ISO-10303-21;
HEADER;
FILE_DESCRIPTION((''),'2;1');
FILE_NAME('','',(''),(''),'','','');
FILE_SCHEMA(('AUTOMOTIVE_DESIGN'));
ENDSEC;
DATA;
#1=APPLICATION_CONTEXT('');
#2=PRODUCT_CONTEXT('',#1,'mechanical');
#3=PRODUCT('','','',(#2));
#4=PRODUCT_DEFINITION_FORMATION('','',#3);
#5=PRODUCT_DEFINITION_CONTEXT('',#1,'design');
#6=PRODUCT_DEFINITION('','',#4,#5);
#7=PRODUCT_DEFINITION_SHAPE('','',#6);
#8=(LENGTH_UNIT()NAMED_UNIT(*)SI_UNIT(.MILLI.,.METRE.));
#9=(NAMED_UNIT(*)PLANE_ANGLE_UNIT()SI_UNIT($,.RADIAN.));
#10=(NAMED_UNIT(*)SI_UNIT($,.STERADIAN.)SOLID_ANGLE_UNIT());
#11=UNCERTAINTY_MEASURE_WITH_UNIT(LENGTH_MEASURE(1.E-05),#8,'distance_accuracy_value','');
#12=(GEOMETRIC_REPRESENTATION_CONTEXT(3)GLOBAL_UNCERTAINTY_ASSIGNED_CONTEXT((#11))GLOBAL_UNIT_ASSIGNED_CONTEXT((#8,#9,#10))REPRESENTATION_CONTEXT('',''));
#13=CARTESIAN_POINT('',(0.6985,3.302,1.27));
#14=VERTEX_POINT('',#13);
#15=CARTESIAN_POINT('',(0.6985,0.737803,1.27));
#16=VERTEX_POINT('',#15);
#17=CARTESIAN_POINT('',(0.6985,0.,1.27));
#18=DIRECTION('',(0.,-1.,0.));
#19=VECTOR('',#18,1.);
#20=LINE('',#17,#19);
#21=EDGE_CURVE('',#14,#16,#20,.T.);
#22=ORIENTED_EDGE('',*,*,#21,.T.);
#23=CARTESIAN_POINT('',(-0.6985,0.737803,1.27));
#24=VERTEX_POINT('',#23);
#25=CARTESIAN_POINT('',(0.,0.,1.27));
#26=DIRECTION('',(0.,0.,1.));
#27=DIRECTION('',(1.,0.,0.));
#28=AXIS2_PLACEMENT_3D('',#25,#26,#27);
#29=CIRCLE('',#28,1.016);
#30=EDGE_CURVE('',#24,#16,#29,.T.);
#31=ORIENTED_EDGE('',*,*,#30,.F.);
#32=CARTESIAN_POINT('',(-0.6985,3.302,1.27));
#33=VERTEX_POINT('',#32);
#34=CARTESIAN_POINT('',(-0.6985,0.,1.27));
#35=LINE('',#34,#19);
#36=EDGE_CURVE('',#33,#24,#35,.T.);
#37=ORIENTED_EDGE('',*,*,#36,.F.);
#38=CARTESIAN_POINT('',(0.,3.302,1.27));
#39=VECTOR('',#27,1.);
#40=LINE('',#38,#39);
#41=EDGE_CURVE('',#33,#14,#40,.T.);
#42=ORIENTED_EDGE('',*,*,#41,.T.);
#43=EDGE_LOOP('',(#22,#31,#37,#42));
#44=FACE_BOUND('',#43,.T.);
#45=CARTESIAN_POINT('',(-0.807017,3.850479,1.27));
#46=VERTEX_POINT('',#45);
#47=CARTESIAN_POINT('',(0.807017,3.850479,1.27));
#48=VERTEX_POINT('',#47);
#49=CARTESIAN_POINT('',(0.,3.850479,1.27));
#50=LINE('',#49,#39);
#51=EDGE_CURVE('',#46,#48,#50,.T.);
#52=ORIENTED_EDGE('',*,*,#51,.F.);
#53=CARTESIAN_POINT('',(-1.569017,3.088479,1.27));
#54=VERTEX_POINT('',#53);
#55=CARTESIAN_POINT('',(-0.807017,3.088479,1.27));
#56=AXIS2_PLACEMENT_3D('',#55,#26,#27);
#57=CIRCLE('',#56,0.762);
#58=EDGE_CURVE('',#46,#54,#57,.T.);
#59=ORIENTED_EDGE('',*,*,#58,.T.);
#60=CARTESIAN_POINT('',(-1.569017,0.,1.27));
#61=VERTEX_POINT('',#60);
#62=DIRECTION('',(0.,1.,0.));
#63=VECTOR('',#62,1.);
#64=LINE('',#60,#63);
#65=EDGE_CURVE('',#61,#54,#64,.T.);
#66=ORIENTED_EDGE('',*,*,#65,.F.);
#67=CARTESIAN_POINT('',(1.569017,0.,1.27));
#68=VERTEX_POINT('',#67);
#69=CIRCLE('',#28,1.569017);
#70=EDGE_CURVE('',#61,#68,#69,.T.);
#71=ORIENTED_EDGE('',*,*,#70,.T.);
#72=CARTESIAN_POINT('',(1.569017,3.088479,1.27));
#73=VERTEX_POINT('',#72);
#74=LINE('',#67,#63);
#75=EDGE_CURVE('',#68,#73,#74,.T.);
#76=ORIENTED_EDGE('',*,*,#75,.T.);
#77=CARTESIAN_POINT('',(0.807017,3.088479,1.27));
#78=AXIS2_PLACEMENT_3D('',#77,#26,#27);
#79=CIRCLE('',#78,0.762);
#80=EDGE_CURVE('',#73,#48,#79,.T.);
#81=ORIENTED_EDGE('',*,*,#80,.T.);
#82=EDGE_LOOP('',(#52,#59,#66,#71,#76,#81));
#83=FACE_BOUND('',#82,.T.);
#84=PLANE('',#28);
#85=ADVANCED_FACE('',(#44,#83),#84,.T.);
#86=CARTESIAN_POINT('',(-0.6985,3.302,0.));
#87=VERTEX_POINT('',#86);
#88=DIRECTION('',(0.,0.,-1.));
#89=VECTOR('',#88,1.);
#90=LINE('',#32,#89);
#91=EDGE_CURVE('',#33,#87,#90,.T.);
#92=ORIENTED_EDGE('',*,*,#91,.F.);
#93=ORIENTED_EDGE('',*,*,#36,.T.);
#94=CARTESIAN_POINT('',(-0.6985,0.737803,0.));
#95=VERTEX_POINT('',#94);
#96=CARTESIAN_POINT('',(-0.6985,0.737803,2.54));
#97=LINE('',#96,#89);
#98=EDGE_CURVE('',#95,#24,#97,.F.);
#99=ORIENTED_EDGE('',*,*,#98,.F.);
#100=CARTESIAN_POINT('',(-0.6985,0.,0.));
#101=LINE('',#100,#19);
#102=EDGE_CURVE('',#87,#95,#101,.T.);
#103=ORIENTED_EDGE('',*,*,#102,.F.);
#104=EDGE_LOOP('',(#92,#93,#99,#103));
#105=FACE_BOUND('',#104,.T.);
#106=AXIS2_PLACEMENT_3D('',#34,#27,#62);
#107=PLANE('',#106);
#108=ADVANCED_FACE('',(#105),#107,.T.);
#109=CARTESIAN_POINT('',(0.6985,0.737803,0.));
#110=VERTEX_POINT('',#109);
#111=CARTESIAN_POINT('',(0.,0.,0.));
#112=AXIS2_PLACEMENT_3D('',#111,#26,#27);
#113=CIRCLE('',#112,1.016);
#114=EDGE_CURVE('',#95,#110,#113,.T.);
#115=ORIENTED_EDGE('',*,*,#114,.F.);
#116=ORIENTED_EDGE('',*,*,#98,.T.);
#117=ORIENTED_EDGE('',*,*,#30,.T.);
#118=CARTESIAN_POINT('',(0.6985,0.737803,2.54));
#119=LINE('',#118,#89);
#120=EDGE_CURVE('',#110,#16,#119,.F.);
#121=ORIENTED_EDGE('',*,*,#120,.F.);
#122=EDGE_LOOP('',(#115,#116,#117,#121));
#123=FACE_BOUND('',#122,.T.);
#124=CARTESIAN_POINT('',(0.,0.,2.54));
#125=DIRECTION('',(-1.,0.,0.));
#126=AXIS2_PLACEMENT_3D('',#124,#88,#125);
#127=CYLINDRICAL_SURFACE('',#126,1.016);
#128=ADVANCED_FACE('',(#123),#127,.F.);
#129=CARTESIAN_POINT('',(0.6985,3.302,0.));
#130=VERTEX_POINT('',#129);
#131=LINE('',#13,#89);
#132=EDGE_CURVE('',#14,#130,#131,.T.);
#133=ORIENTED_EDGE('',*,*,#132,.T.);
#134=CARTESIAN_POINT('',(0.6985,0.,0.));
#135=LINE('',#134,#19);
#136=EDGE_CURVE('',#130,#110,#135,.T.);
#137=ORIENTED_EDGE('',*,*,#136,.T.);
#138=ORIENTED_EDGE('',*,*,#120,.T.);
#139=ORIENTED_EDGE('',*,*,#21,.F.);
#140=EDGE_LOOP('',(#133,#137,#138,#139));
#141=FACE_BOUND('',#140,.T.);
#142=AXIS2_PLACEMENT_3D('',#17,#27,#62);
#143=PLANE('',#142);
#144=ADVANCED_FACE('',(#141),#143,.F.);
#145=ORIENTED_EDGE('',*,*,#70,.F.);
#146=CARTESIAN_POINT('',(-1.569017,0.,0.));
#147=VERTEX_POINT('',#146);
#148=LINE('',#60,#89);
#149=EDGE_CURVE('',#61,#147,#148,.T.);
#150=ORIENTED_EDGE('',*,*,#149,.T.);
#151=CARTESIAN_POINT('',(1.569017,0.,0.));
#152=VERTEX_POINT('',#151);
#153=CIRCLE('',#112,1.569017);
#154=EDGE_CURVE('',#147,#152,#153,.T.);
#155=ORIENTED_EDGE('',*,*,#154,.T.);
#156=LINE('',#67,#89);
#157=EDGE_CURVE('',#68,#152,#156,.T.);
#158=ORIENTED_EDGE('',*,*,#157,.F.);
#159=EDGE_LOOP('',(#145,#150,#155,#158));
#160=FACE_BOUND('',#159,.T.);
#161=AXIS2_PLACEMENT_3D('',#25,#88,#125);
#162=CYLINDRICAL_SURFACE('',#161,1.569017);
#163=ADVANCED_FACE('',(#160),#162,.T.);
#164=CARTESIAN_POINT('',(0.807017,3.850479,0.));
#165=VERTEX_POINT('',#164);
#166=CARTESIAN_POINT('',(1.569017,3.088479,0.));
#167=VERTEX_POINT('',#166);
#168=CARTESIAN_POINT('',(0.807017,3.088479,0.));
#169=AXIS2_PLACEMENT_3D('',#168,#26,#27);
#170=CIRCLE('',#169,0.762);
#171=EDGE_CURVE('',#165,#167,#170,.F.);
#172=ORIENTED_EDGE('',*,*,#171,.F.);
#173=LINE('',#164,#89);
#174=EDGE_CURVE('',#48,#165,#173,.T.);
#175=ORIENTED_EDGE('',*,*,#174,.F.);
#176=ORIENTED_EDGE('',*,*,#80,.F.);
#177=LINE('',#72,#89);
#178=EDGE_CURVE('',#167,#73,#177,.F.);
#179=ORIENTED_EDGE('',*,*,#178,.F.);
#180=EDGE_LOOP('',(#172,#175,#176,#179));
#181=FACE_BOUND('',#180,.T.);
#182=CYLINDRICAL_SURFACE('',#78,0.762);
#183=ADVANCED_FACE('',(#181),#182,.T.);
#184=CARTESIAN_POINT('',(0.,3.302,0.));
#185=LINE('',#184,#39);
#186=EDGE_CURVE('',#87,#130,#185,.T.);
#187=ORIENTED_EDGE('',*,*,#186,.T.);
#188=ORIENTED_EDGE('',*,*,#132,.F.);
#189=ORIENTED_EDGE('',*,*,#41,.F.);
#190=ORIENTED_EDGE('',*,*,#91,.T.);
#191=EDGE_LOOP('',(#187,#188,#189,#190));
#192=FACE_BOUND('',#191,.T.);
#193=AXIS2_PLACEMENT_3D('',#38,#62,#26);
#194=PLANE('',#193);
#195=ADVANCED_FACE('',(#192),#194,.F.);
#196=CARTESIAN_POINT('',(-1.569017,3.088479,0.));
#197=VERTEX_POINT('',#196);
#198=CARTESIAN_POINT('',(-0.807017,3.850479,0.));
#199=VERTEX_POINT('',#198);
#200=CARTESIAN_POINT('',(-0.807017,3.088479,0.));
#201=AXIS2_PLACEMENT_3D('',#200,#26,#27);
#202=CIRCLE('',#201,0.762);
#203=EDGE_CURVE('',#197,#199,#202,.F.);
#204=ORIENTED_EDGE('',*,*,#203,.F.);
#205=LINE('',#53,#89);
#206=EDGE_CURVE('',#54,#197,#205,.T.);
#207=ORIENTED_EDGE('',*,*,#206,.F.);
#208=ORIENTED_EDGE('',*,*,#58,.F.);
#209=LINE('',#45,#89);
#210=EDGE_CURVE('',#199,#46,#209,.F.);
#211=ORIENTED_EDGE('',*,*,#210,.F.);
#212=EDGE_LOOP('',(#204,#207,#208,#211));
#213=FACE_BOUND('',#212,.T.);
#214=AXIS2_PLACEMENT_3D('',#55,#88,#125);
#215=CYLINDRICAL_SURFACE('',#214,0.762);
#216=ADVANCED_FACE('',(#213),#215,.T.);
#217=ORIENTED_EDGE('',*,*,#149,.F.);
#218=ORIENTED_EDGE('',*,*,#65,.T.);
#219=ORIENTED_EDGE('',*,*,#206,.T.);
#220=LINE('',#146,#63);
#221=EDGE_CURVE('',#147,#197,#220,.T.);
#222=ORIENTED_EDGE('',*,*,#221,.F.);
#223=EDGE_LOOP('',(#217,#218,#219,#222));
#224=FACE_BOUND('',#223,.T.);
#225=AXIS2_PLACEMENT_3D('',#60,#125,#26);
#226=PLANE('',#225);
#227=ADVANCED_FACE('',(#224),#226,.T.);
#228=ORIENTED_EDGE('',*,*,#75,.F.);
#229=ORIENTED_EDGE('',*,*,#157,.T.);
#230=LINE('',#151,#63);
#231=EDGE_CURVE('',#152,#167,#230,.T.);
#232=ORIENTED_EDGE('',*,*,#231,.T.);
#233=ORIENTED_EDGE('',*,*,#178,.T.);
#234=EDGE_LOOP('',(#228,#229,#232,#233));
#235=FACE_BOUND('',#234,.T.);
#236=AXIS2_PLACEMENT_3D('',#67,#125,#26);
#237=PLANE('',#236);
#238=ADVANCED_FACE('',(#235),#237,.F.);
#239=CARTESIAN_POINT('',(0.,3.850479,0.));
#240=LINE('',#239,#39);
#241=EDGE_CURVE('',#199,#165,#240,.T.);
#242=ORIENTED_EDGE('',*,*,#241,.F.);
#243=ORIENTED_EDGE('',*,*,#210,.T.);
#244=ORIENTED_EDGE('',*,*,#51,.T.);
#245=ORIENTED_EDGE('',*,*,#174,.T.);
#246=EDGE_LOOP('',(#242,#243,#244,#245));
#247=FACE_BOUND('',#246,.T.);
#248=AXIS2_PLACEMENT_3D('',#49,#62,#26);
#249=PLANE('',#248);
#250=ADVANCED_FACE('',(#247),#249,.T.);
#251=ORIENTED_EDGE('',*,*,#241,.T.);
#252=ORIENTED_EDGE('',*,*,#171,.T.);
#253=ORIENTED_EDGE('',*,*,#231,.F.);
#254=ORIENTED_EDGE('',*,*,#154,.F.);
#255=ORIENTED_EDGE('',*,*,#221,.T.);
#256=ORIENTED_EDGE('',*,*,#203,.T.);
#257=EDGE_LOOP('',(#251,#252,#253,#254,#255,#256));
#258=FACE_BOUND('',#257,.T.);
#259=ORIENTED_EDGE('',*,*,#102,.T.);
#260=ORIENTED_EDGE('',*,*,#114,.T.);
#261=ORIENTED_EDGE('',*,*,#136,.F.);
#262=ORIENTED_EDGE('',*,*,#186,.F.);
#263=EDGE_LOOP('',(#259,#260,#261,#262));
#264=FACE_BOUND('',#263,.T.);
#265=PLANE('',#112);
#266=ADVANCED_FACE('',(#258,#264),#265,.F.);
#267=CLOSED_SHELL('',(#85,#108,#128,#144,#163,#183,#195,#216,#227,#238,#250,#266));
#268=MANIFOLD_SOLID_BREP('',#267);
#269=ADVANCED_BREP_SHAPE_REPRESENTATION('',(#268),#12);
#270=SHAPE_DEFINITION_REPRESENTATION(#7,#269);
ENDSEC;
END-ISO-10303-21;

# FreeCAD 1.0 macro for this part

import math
import FreeCAD as App
import Part
import Sketcher
Q = App.Units.Quantity


def edges_at(feature, points):
    """Names of the edges that pass closest to the given points."""
    edges = feature.Shape.Edges
    near = lambda p: min(range(len(edges)), key=lambda i: edges[i].distToShape(Part.Vertex(*p))[0])
    return sorted({f"Edge{near(p) + 1}" for p in points})

doc = App.newDocument("Part")
body = doc.addObject("PartDesign::Body", "Body")

# Sketch on XY plane
sketch1 = body.newObject("Sketcher::SketchObject", "Sketch")
sketch1.AttachmentSupport = (doc.getObject("XY_Plane"), [""])
sketch1.MapMode = "FlatFace"
sketch1.addGeometry(Part.LineSegment(App.Vector(-1.6, 3.9, 0), App.Vector(-1.6, 0, 0)), False)
sketch1.addGeometry(Part.ArcOfCircle(Part.Circle(App.Vector(0, 0, 0), App.Vector(0, 0, 1), 1.6), math.radians(180), math.radians(360)), False)
sketch1.addGeometry(Part.LineSegment(App.Vector(1.6, 0, 0), App.Vector(1.6, 3.9, 0)), False)
sketch1.addGeometry(Part.LineSegment(App.Vector(1.6, 3.9, 0), App.Vector(-1.6, 3.9, 0)), False)
sketch1.addGeometry(Part.ArcOfCircle(Part.Circle(App.Vector(0, 0, 0), App.Vector(0, 0, 1), 0.7), math.radians(180), math.radians(360)), False)
sketch1.addGeometry(Part.LineSegment(App.Vector(-0.7, 0, 0), App.Vector(-0.7, 3.3, 0)), False)
sketch1.addGeometry(Part.LineSegment(App.Vector(-0.7, 3.3, 0), App.Vector(0.7, 3.3, 0)), False)
sketch1.addGeometry(Part.LineSegment(App.Vector(0.7, 3.3, 0), App.Vector(0.7, 0, 0)), False)
sketch1.addConstraint(Sketcher.Constraint("Tangent", 0, 2, 1, 1))
sketch1.addConstraint(Sketcher.Constraint("Tangent", 1, 2, 2, 1))
sketch1.addConstraint(Sketcher.Constraint("Coincident", 2, 2, 3, 1))
sketch1.addConstraint(Sketcher.Constraint("Coincident", 3, 2, 0, 1))
sketch1.addConstraint(Sketcher.Constraint("Tangent", 4, 1, 5, 1))
sketch1.addConstraint(Sketcher.Constraint("Coincident", 5, 2, 6, 1))
sketch1.addConstraint(Sketcher.Constraint("Coincident", 6, 2, 7, 1))
sketch1.addConstraint(Sketcher.Constraint("Tangent", 7, 2, 4, 2))
sketch1.addConstraint(Sketcher.Constraint("Vertical", 0))
sketch1.addConstraint(Sketcher.Constraint("Vertical", 2))
sketch1.addConstraint(Sketcher.Constraint("Horizontal", 3))
sketch1.addConstraint(Sketcher.Constraint("Vertical", 5))
sketch1.addConstraint(Sketcher.Constraint("Horizontal", 6))
sketch1.addConstraint(Sketcher.Constraint("Vertical", 7))
sketch1.addConstraint(Sketcher.Constraint("Coincident", 1, 3, -1, 1))
sketch1.addConstraint(Sketcher.Constraint("Coincident", 4, 3, -1, 1))
sketch1.addConstraint(Sketcher.Constraint("DistanceY", 5, 1, 5, 2, Q("0.13 in")))
sketch1.addConstraint(Sketcher.Constraint("Radius", 4, Q("0.0275 in")))
sketch1.addConstraint(Sketcher.Constraint("Radius", 1, 1.569017))
sketch1.addConstraint(Sketcher.Constraint("DistanceY", 0, 2, 0, 1, 3.850479))
pad1 = body.newObject("PartDesign::Pad", "Pad")
pad1.Profile = sketch1
pad1.Length = Q("0.05 in")

# Sketch on XY plane
sketch2 = body.newObject("Sketcher::SketchObject", "Sketch001")
sketch2.AttachmentSupport = (doc.getObject("XY_Plane"), [""])
sketch2.MapMode = "FlatFace"
sketch2.addGeometry(Part.Circle(App.Vector(0, 0, 0), App.Vector(0, 0, 1), 1), False)
sketch2.addConstraint(Sketcher.Constraint("Coincident", 0, 3, -1, 1))
sketch2.addConstraint(Sketcher.Constraint("Diameter", 0, Q("0.08 in")))
pocket1 = body.newObject("PartDesign::Pocket", "Pocket")
pocket1.Profile = sketch2
pocket1.Length = Q("0.1 in")
pocket1.Reversed = True
doc.recompute()

fillet = body.newObject("PartDesign::Fillet", "Fillet")
fillet.Base = (pocket1, edges_at(pocket1, [(-1.569, 3.85, 0.635), (1.569, 3.85, 0.635)]))
fillet.Radius = Q("0.03 in")

doc.recompute()
